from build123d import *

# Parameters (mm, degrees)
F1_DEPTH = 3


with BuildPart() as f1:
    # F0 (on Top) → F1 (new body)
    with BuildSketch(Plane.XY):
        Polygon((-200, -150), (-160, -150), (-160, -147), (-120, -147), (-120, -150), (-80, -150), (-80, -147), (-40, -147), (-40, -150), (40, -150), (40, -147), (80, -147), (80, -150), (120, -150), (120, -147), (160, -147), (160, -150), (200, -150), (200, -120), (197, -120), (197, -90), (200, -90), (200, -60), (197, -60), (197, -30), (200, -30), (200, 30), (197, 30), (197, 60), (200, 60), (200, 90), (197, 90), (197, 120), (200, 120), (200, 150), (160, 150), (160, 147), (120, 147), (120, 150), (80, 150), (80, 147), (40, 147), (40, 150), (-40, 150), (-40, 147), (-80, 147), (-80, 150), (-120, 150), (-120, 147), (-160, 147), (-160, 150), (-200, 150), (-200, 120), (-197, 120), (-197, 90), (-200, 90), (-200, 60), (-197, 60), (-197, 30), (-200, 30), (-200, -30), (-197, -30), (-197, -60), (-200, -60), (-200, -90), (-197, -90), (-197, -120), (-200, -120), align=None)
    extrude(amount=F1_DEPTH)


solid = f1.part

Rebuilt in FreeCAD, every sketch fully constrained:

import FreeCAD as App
import Part
import Sketcher
Q = App.Units.Quantity


def add_polygon(sketch, points):
    """Adds a closed chain of lines whose ends are joined by coincident constraints."""
    first, n = sketch.GeometryCount, len(points)
    for a, b in zip(points, points[1:] + points[:1]):
        sketch.addGeometry(Part.LineSegment(App.Vector(*a, 0), App.Vector(*b, 0)), False)
    for i in range(n):
        sketch.addConstraint(Sketcher.Constraint("Coincident", first + i, 2, first + (i + 1) % n, 1))

doc = App.newDocument("Part")
params = doc.addObject("Spreadsheet::Sheet", "Params")
for row, (alias, value) in enumerate([
    ("sketch1_width", "40 mm"),
    ("sketch1_width2", "80 mm"),
    ("sketch1_width3", "3 mm"),
    ("sketch1_height", "30 mm"),
    ("sketch1_height2", "60 mm"),
    ("pad1_length", "3 mm"),
], start=1):
    params.set(f"A{row}", alias)
    params.set(f"B{row}", "=" + value)
    params.setAlias(f"B{row}", alias)

body = doc.addObject("PartDesign::Body", "Body")

# Sketch on XY plane
sketch1 = body.newObject("Sketcher::SketchObject", "Sketch")
sketch1.AttachmentSupport = (doc.getObject("XY_Plane"), [""])
sketch1.MapMode = "FlatFace"
add_polygon(sketch1, [(-200, -150), (-160, -150), (-160, -147), (-120, -147), (-120, -150), (-80, -150), (-80, -147), (-40, -147), (-40, -150), (40, -150), (40, -147), (80, -147), (80, -150), (120, -150), (120, -147), (160, -147), (160, -150), (200, -150), (200, -120), (197, -120), (197, -90), (200, -90), (200, -60), (197, -60), (197, -30), (200, -30), (200, 30), (197, 30), (197, 60), (200, 60), (200, 90), (197, 90), (197, 120), (200, 120), (200, 150), (160, 150), (160, 147), (120, 147), (120, 150), (80, 150), (80, 147), (40, 147), (40, 150), (-40, 150), (-40, 147), (-80, 147), (-80, 150), (-120, 150), (-120, 147), (-160, 147), (-160, 150), (-200, 150), (-200, 120), (-197, 120), (-197, 90), (-200, 90), (-200, 60), (-197, 60), (-197, 30), (-200, 30), (-200, -30), (-197, -30), (-197, -60), (-200, -60), (-200, -90), (-197, -90), (-197, -120), (-200, -120)])  # lines 0-67
sketch1.addConstraint([
    Sketcher.Constraint("Horizontal", 0),
    Sketcher.Constraint("Vertical", 1),
    Sketcher.Constraint("Horizontal", 2),
    Sketcher.Constraint("Vertical", 3),
    Sketcher.Constraint("Horizontal", 4),
    Sketcher.Constraint("Vertical", 5),
    Sketcher.Constraint("Horizontal", 6),
    Sketcher.Constraint("Vertical", 7),
    Sketcher.Constraint("Horizontal", 8),
    Sketcher.Constraint("Vertical", 9),
    Sketcher.Constraint("Horizontal", 10),
    Sketcher.Constraint("Vertical", 11),
    Sketcher.Constraint("Horizontal", 12),
    Sketcher.Constraint("Vertical", 13),
    Sketcher.Constraint("Horizontal", 14),
    Sketcher.Constraint("Vertical", 15),
    Sketcher.Constraint("Horizontal", 16),
    Sketcher.Constraint("Vertical", 17),
    Sketcher.Constraint("Horizontal", 18),
    Sketcher.Constraint("Vertical", 19),
    Sketcher.Constraint("Horizontal", 20),
    Sketcher.Constraint("Vertical", 21),
    Sketcher.Constraint("Horizontal", 22),
    Sketcher.Constraint("Vertical", 23),
    Sketcher.Constraint("Horizontal", 24),
    Sketcher.Constraint("Vertical", 25),
    Sketcher.Constraint("Horizontal", 26),
    Sketcher.Constraint("Vertical", 27),
    Sketcher.Constraint("Horizontal", 28),
    Sketcher.Constraint("Vertical", 29),
    Sketcher.Constraint("Horizontal", 30),
    Sketcher.Constraint("Vertical", 31),
    Sketcher.Constraint("Horizontal", 32),
    Sketcher.Constraint("Vertical", 33),
    Sketcher.Constraint("Horizontal", 34),
    Sketcher.Constraint("Vertical", 35),
    Sketcher.Constraint("Horizontal", 36),
    Sketcher.Constraint("Vertical", 37),
    Sketcher.Constraint("Horizontal", 38),
    Sketcher.Constraint("Vertical", 39),
    Sketcher.Constraint("Horizontal", 40),
    Sketcher.Constraint("Vertical", 41),
    Sketcher.Constraint("Horizontal", 42),
    Sketcher.Constraint("Vertical", 43),
    Sketcher.Constraint("Horizontal", 44),
    Sketcher.Constraint("Vertical", 45),
    Sketcher.Constraint("Horizontal", 46),
    Sketcher.Constraint("Vertical", 47),
    Sketcher.Constraint("Horizontal", 48),
    Sketcher.Constraint("Vertical", 49),
    Sketcher.Constraint("Horizontal", 50),
    Sketcher.Constraint("Vertical", 51),
    Sketcher.Constraint("Horizontal", 52),
    Sketcher.Constraint("Vertical", 53),
    Sketcher.Constraint("Horizontal", 54),
    Sketcher.Constraint("Vertical", 55),
    Sketcher.Constraint("Horizontal", 56),
    Sketcher.Constraint("Vertical", 57),
    Sketcher.Constraint("Horizontal", 58),
    Sketcher.Constraint("Vertical", 59),
    Sketcher.Constraint("Horizontal", 60),
    Sketcher.Constraint("Vertical", 61),
    Sketcher.Constraint("Horizontal", 62),
    Sketcher.Constraint("Vertical", 63),
    Sketcher.Constraint("Horizontal", 64),
    Sketcher.Constraint("Vertical", 65),
    Sketcher.Constraint("Horizontal", 66),
    Sketcher.Constraint("Vertical", 67),
    Sketcher.Constraint("Symmetric", 0, 2, 34, 2, -1, 1),
    Sketcher.Constraint("Symmetric", 2, 2, 36, 2, -1, 1),
    Sketcher.Constraint("Symmetric", 4, 2, 38, 2, -1, 1),
    Sketcher.Constraint("Symmetric", 6, 2, 40, 2, -1, 1),
    Sketcher.Constraint("Symmetric", 8, 2, 42, 2, -1, 1),
    Sketcher.Constraint("Symmetric", 10, 2, 44, 2, -1, 1),
    Sketcher.Constraint("Symmetric", 12, 2, 46, 2, -1, 1),
    Sketcher.Constraint("Symmetric", 14, 2, 48, 2, -1, 1),
    Sketcher.Constraint("Symmetric", 16, 2, 50, 2, -1, 1),
    Sketcher.Constraint("Symmetric", 18, 2, 52, 2, -1, 1),
    Sketcher.Constraint("Symmetric", 20, 2, 54, 2, -1, 1),
    Sketcher.Constraint("Symmetric", 22, 2, 56, 2, -1, 1),
    Sketcher.Constraint("Symmetric", 24, 2, 58, 2, -1, 1),
    Sketcher.Constraint("Symmetric", 26, 2, 60, 2, -1, 1),
    Sketcher.Constraint("Symmetric", 28, 2, 62, 2, -1, 1),
    Sketcher.Constraint("Symmetric", 30, 2, 64, 2, -1, 1),
    Sketcher.Constraint("Symmetric", 32, 2, 66, 2, -1, 1),
    Sketcher.Constraint("Symmetric", 6, 2, 9, 2, -2),
    Sketcher.Constraint("Symmetric", 4, 2, 11, 2, -2),
    Sketcher.Constraint("Symmetric", 2, 2, 13, 2, -2),
    Sketcher.Constraint("Symmetric", 0, 2, 15, 2, -2),
    Sketcher.Constraint("Symmetric", 32, 2, 51, 2, -2),
    Sketcher.Constraint("Symmetric", 30, 2, 53, 2, -2),
    Sketcher.Constraint("Symmetric", 28, 2, 55, 2, -2),
    Sketcher.Constraint("Symmetric", 26, 2, 57, 2, -2),
    Sketcher.Constraint("Horizontal", 0, 2, 3, 2),
    Sketcher.Constraint("Horizontal", 2, 2, 5, 2),
    Sketcher.Constraint("Horizontal", 4, 2, 7, 2),
    Sketcher.Constraint("Vertical", 17, 2, 20, 2),
    Sketcher.Constraint("Vertical", 19, 2, 22, 2),
    Sketcher.Constraint("Vertical", 21, 2, 24, 2),
    Sketcher.Constraint("Equal", 0, 2),
    Sketcher.Constraint("Equal", 2, 4),
    Sketcher.Constraint("Equal", 4, 6),
    Sketcher.Constraint("Equal", 66, 1),
    Sketcher.Constraint("Equal", 17, 19),
    Sketcher.Constraint("Equal", 19, 21),
    Sketcher.Constraint("Equal", 21, 23),
    Sketcher.Constraint("DistanceX", 0, 1, 0, 2, Q("40 mm")),
    Sketcher.Constraint("DistanceX", 8, 1, 8, 2, Q("80 mm")),
    Sketcher.Constraint("DistanceX", 18, 2, 18, 1, Q("3 mm")),
    Sketcher.Constraint("DistanceY", 17, 1, 17, 2, Q("30 mm")),
    Sketcher.Constraint("DistanceY", 25, 1, 25, 2, Q("60 mm")),
])
sketch1.setExpression("Constraints[174]", "Params.sketch1_width")
sketch1.setExpression("Constraints[175]", "Params.sketch1_width2")
sketch1.setExpression("Constraints[176]", "Params.sketch1_width3")
sketch1.setExpression("Constraints[177]", "Params.sketch1_height")
sketch1.setExpression("Constraints[178]", "Params.sketch1_height2")
pad1 = body.newObject("PartDesign::Pad", "Pad")
pad1.Profile = sketch1
pad1.setExpression("Length", "Params.pad1_length")

doc.recompute()
